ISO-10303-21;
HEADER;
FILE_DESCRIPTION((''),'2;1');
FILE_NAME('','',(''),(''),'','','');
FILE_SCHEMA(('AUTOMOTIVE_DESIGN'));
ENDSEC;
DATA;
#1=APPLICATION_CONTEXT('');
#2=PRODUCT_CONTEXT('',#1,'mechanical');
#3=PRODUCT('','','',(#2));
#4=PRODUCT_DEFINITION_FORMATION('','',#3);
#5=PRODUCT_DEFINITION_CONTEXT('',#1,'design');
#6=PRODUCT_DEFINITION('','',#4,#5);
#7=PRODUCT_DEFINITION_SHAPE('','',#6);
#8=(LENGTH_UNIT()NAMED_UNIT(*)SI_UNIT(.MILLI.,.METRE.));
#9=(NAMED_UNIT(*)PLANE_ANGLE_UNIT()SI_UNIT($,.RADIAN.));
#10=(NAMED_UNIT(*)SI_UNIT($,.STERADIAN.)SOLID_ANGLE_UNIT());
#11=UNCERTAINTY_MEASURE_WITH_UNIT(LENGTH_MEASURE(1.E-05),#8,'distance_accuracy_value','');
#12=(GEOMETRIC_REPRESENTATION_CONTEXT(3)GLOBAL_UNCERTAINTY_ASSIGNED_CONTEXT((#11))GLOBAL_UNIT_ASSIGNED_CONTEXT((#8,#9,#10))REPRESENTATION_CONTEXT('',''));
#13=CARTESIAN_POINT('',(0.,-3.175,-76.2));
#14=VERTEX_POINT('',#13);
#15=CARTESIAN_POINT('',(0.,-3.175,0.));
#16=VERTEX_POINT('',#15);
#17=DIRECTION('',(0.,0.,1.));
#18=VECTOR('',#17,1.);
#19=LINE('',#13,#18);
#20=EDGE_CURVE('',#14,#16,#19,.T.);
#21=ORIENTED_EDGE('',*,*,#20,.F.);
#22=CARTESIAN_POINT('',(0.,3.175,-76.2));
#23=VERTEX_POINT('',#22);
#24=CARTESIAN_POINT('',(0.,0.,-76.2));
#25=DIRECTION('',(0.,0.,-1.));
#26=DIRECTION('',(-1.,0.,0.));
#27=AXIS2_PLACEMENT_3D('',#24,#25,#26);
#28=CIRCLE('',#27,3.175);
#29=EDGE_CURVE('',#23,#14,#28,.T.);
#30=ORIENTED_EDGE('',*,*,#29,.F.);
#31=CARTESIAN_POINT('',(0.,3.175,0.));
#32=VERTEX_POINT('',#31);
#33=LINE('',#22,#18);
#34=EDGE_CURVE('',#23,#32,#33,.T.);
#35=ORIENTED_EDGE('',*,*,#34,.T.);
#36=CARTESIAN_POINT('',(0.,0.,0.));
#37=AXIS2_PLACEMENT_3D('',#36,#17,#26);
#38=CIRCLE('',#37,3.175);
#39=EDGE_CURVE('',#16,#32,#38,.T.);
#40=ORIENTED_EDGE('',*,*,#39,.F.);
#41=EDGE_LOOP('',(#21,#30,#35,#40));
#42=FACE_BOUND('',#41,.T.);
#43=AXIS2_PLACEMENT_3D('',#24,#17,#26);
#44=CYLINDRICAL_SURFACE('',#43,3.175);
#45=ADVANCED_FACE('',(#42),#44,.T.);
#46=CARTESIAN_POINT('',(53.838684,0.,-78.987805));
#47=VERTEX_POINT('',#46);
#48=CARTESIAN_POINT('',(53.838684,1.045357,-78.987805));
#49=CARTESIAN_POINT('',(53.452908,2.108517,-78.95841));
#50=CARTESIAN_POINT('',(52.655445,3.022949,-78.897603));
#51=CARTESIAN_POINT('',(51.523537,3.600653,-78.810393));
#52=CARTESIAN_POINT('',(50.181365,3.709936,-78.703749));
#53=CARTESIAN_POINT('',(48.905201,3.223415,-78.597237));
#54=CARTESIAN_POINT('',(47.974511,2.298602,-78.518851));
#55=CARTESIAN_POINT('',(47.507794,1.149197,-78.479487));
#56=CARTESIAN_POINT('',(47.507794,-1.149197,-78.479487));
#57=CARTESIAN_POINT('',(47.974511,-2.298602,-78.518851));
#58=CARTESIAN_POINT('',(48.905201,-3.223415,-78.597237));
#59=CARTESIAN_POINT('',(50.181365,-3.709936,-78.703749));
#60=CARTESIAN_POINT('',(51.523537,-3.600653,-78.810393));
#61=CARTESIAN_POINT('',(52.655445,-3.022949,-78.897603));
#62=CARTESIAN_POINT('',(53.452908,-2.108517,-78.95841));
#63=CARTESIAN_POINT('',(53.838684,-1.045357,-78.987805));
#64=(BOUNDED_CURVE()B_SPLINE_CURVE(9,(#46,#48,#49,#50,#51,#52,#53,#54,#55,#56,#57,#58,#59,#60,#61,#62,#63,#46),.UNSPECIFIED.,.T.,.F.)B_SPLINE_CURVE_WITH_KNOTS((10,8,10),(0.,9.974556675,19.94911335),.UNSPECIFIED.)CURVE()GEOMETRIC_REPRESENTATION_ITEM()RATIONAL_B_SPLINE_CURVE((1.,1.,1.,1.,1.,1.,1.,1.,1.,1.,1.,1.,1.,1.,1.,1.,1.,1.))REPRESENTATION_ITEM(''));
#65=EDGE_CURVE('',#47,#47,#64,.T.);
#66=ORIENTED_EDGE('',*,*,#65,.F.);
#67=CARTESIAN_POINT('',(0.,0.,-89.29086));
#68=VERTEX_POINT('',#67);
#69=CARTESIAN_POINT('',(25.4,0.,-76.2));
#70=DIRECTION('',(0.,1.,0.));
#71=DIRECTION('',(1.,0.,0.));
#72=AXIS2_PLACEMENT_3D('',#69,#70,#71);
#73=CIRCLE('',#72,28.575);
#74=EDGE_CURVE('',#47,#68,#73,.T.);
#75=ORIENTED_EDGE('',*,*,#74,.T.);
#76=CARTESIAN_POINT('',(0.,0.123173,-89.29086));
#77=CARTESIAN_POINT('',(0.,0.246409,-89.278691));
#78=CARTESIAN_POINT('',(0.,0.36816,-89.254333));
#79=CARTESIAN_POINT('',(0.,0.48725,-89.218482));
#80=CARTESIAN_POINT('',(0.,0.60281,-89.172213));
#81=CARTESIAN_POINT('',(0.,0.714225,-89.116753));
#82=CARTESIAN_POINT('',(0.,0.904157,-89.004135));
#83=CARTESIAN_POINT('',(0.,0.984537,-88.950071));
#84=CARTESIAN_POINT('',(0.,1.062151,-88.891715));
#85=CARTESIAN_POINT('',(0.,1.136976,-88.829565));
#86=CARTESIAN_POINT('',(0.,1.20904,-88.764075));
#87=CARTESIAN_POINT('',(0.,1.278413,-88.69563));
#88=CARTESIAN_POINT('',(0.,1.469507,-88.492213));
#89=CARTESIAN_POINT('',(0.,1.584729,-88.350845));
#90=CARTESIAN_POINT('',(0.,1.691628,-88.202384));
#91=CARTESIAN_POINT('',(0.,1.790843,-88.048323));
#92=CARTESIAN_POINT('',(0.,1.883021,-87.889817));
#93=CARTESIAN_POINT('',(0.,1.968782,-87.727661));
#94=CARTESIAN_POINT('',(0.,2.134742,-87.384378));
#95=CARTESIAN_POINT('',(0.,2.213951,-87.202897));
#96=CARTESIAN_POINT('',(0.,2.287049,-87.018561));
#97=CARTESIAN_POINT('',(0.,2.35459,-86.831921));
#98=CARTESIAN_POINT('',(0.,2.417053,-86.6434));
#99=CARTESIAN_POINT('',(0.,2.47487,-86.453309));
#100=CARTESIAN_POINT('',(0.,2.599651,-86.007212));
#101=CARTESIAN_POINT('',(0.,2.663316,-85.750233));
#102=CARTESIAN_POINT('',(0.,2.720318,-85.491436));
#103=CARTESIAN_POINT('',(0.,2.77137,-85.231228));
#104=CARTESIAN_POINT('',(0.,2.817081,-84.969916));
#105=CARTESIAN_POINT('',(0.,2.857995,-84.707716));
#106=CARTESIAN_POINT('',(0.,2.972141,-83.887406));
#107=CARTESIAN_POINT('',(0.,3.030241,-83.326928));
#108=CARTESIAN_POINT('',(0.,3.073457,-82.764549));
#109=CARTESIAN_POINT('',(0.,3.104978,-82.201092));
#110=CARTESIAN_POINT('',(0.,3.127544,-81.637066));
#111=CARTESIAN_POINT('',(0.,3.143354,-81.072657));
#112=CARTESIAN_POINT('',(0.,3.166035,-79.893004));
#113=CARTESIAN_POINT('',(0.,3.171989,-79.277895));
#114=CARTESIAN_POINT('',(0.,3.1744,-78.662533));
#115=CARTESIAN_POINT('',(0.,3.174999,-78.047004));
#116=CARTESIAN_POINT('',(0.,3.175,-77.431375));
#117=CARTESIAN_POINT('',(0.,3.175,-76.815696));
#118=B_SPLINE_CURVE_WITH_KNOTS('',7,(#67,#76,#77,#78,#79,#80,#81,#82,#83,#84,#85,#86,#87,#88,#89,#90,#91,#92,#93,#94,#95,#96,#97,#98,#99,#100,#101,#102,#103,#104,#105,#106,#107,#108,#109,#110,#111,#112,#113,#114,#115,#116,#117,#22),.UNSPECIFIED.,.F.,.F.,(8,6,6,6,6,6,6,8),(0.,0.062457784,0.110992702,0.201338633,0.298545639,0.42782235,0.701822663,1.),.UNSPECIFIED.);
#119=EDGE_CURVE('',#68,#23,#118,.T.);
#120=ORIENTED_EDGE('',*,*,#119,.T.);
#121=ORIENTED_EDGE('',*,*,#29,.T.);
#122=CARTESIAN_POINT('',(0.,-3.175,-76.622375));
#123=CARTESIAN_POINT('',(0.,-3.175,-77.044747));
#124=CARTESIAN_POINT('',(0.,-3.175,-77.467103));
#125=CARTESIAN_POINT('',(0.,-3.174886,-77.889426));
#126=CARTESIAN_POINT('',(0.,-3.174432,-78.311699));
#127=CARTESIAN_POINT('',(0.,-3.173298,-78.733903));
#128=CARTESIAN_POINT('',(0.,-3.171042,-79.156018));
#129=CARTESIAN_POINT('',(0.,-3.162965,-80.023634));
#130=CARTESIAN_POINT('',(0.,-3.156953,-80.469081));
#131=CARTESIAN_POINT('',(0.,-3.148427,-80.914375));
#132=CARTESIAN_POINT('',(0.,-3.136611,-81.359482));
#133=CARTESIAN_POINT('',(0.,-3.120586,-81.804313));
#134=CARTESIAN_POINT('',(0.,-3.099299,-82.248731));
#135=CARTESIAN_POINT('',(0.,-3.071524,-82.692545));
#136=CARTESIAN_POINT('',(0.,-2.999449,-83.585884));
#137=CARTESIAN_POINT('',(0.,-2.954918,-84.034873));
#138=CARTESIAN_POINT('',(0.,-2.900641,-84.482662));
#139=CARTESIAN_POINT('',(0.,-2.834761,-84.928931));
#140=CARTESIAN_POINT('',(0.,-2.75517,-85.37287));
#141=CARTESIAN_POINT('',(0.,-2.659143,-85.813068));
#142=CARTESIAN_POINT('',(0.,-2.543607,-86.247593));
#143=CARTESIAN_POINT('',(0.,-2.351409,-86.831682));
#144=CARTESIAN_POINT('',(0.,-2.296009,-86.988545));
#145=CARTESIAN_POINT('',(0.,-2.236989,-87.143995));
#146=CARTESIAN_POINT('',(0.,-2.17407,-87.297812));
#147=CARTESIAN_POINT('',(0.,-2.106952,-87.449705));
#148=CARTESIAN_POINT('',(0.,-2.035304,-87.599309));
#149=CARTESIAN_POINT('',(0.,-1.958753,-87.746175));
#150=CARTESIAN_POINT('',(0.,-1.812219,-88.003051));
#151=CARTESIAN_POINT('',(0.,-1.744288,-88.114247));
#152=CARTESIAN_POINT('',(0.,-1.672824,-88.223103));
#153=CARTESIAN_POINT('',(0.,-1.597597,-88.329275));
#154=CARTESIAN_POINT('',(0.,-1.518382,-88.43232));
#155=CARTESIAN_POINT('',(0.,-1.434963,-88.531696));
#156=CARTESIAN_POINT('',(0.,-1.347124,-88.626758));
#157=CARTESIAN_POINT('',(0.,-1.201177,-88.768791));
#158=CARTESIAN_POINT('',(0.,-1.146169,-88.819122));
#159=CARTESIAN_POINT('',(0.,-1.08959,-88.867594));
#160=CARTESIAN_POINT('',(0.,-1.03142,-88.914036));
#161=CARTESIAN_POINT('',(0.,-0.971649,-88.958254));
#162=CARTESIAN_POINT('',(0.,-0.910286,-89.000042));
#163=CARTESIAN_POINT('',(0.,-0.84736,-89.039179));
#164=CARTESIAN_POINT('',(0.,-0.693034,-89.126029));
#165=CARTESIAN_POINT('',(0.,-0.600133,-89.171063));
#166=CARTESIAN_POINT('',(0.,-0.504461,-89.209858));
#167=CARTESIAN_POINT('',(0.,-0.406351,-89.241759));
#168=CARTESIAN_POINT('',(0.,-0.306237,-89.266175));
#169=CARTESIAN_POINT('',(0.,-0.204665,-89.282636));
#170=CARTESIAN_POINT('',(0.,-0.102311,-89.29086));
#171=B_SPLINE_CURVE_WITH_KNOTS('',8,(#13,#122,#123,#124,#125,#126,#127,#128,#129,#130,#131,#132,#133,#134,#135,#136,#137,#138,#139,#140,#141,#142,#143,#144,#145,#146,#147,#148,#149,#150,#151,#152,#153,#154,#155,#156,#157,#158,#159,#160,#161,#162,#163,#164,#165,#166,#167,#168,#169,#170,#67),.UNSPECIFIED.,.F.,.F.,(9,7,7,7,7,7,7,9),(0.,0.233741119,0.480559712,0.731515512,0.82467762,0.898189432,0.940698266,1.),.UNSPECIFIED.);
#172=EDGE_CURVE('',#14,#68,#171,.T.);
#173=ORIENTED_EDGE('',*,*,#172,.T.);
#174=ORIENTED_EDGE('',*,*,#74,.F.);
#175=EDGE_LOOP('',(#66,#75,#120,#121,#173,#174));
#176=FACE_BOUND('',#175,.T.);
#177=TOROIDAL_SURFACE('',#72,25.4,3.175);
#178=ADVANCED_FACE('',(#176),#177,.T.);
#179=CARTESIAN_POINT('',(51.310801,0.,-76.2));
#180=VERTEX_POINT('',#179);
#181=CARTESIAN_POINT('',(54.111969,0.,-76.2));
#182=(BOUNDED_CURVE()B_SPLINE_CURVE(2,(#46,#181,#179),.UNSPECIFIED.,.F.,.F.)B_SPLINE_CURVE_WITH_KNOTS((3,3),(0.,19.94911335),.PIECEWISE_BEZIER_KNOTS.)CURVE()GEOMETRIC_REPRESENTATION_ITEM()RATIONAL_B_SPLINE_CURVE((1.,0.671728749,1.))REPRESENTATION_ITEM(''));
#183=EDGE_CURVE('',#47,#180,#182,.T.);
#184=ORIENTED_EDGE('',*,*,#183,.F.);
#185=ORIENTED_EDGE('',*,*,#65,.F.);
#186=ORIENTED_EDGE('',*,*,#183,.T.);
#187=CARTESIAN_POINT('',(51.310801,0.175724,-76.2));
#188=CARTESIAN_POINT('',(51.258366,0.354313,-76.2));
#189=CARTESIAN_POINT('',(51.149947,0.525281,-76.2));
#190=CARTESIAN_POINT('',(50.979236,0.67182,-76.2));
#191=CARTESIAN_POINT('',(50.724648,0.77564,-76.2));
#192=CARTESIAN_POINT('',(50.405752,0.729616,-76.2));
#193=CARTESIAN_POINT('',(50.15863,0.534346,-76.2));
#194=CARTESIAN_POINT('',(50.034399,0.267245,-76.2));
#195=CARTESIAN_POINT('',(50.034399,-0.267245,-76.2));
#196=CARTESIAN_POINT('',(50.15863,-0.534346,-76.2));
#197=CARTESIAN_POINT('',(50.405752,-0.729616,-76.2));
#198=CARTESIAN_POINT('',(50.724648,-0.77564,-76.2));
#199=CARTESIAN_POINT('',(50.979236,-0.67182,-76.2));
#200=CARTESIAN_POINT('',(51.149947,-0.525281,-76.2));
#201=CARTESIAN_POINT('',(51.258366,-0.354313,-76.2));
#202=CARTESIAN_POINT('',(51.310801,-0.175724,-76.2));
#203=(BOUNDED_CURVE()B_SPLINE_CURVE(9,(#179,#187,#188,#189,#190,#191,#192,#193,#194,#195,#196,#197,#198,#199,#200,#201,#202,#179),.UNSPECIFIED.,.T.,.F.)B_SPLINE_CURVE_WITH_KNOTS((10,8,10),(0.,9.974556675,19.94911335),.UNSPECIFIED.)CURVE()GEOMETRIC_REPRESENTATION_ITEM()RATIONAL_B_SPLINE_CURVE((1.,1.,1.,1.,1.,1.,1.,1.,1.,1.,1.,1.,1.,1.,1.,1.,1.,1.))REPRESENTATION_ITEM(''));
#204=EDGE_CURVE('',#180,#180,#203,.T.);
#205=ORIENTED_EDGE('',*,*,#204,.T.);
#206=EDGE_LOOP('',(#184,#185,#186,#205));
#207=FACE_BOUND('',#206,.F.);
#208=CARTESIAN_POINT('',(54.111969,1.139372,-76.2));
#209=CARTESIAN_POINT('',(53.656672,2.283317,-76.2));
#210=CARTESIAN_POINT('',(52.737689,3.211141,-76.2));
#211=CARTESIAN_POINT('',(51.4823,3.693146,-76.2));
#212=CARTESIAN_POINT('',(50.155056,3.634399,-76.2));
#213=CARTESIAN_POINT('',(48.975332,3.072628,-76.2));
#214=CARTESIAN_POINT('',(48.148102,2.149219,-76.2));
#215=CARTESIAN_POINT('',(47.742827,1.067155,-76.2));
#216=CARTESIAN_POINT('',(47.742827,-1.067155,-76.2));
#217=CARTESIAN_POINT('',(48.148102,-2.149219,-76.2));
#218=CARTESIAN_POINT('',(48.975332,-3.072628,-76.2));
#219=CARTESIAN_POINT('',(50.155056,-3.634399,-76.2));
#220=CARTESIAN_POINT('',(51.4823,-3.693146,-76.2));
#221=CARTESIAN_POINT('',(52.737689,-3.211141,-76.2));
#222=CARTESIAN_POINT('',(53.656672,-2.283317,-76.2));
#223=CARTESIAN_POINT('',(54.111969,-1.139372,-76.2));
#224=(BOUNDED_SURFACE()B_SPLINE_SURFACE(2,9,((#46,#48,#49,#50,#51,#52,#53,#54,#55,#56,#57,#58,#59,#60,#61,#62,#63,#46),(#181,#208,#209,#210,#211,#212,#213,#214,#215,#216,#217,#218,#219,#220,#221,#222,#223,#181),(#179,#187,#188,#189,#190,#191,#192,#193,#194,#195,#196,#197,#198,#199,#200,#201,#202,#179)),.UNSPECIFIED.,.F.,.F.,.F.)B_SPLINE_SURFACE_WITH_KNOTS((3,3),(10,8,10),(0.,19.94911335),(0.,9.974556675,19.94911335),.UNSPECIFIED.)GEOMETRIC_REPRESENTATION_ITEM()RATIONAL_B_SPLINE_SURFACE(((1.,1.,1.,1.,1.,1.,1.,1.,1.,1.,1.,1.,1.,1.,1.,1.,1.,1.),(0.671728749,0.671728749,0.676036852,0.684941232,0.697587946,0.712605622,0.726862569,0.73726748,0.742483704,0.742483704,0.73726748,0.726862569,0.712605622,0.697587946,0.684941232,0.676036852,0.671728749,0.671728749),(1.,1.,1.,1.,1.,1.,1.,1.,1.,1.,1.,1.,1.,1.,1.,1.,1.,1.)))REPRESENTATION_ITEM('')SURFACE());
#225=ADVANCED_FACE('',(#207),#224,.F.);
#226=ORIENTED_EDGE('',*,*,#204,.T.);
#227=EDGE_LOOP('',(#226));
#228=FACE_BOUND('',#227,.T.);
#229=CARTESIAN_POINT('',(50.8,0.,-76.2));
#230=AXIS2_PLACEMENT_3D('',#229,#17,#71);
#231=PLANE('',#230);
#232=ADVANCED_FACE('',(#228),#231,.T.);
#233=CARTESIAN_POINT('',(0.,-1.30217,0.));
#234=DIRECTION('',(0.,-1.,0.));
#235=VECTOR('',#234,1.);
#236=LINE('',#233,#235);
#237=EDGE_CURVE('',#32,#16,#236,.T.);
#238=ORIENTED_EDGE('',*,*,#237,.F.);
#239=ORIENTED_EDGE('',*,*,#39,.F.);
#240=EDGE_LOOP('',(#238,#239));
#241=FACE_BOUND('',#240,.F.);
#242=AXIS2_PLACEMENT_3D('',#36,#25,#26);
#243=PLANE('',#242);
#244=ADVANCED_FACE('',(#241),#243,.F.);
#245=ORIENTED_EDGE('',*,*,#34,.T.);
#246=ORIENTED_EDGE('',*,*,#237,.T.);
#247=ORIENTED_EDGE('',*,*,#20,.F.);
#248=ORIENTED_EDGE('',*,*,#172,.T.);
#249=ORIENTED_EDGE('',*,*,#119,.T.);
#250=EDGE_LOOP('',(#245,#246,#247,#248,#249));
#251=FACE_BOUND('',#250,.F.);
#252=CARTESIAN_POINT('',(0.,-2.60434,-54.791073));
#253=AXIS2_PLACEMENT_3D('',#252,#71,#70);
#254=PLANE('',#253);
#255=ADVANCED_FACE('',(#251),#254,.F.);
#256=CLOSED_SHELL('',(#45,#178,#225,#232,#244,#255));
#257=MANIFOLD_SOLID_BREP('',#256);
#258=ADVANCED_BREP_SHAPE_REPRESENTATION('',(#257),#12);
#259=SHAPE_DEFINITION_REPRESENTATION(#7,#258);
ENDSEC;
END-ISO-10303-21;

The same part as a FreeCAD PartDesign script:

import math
import FreeCAD as App
import Part
import Sketcher
from FreeCAD import Vector
Q = App.Units.Quantity


def edges_at(feature, points):
    """Names of the edges that pass closest to the given points."""
    edges = feature.Shape.Edges
    near = lambda p: min(range(len(edges)), key=lambda i: edges[i].distToShape(Part.Vertex(*p))[0])
    return sorted({f"Edge{near(p) + 1}" for p in points})


def add_polygon(sketch, points):
    """Adds a closed chain of lines whose ends are joined by coincident constraints."""
    first, n = sketch.GeometryCount, len(points)
    for a, b in zip(points, points[1:] + points[:1]):
        sketch.addGeometry(Part.LineSegment(App.Vector(*a, 0), App.Vector(*b, 0)), False)
    for i in range(n):
        sketch.addConstraint(Sketcher.Constraint("Coincident", first + i, 2, first + (i + 1) % n, 1))

doc = App.newDocument("Part")
params = doc.addObject("Spreadsheet::Sheet", "Params")
for row, (alias, value) in enumerate([
    ("sketch1_diameter", "0.25 in"),
    ("sketch2_radius", "1 in"),
    ("sketch2_height", "3 in"),
    ("fillet_radius", "0.1 in"),
    ("pocket1_length", "1 in"),
], start=1):
    params.set(f"A{row}", alias)
    params.set(f"B{row}", "=" + value)
    params.setAlias(f"B{row}", alias)

body = doc.addObject("PartDesign::Body", "Body")

sketch1 = body.newObject("Sketcher::SketchObject", "Sketch")
sketch1.AttachmentSupport = (doc.getObject("XY_Plane"), [""])
sketch1.MapMode = "FlatFace"
sketch1.AttachmentOffset = App.Placement(Vector(0, 0, -3 * 25.4), App.Rotation())
sketch1.addGeometry(Part.Circle(Vector(50.8, 0, 0), Vector(0, 0, 1), 3.175), False)
sketch1.addConstraint([
    Sketcher.Constraint("PointOnObject", 0, 3, -1),
    Sketcher.Constraint("Diameter", 0, Q("0.25 in")),
    Sketcher.Constraint("DistanceX", -1, 1, 0, 3, Q("2 in")),
])
sketch1.setExpression("Constraints[1]", "Params.sketch1_diameter")

sketch2 = body.newObject("Sketcher::SketchObject", "Sketch001")
sketch2.AttachmentSupport = (doc.getObject("XZ_Plane"), [""])
sketch2.MapMode = "FlatFace"
sketch2.addGeometry([
    Part.ArcOfCircle(Part.Circle(Vector(25.4, -76.2, 0), Vector(0, 0, 1), 25.4), math.radians(180), math.radians(360)),
    Part.LineSegment(Vector(0, -76.2, 0), Vector(0, 0, 0)),
], False)
sketch2.addConstraint([
    Sketcher.Constraint("Tangent", 0, 1, 1, 1),
    Sketcher.Constraint("Vertical", 1),
    Sketcher.Constraint("Coincident", 1, 2, -1, 1),
    Sketcher.Constraint("Radius", 0, Q("1 in")),
    Sketcher.Constraint("DistanceY", 1, 1, 1, 2, Q("3 in")),
    Sketcher.Constraint("DistanceY", 0, 2, -1, 1, Q("3 in")),
])
sketch2.setExpression("Constraints[3]", "Params.sketch2_radius")
sketch2.setExpression("Constraints[4]", "Params.sketch2_height")
doc.recompute()

additivepipe = body.newObject("PartDesign::AdditivePipe", "AdditivePipe")
additivepipe.Profile = sketch1
additivepipe.Spine = (sketch2, ["Edge1", "Edge2"])
doc.recompute()

fillet = body.newObject("PartDesign::Fillet", "Fillet")
fillet.Base = (additivepipe, edges_at(additivepipe, [(47.625, 0, -76.2)]))
fillet.setExpression("Radius", "Params.fillet_radius")

sketch3 = body.newObject("Sketcher::SketchObject", "Sketch002")
sketch3.AttachmentSupport = (doc.getObject("YZ_Plane"), [""])
sketch3.MapMode = "FlatFace"
add_polygon(sketch3, [(-19.913804, 15.739257), (-19.913804, -125.321403), (14.705124, -125.321403), (14.705124, 15.739257)])
sketch3.addConstraint([
    Sketcher.Constraint("Vertical", 0),
    Sketcher.Constraint("Horizontal", 1),
    Sketcher.Constraint("Vertical", 2),
    Sketcher.Constraint("Horizontal", 3),
    Sketcher.Constraint("DistanceX", 1, 1, 1, 2, Q("34.618928 mm")),
    Sketcher.Constraint("DistanceY", 0, 2, 0, 1, Q("141.06066 mm")),
    Sketcher.Constraint("DistanceX", 0, 2, -1, 1, Q("19.913804 mm")),
    Sketcher.Constraint("DistanceY", 0, 2, -1, 1, Q("125.321403 mm")),
])
pocket1 = body.newObject("PartDesign::Pocket", "Pocket")
pocket1.Profile = sketch3
pocket1.setExpression("Length", "Params.pocket1_length")

doc.recompute()
